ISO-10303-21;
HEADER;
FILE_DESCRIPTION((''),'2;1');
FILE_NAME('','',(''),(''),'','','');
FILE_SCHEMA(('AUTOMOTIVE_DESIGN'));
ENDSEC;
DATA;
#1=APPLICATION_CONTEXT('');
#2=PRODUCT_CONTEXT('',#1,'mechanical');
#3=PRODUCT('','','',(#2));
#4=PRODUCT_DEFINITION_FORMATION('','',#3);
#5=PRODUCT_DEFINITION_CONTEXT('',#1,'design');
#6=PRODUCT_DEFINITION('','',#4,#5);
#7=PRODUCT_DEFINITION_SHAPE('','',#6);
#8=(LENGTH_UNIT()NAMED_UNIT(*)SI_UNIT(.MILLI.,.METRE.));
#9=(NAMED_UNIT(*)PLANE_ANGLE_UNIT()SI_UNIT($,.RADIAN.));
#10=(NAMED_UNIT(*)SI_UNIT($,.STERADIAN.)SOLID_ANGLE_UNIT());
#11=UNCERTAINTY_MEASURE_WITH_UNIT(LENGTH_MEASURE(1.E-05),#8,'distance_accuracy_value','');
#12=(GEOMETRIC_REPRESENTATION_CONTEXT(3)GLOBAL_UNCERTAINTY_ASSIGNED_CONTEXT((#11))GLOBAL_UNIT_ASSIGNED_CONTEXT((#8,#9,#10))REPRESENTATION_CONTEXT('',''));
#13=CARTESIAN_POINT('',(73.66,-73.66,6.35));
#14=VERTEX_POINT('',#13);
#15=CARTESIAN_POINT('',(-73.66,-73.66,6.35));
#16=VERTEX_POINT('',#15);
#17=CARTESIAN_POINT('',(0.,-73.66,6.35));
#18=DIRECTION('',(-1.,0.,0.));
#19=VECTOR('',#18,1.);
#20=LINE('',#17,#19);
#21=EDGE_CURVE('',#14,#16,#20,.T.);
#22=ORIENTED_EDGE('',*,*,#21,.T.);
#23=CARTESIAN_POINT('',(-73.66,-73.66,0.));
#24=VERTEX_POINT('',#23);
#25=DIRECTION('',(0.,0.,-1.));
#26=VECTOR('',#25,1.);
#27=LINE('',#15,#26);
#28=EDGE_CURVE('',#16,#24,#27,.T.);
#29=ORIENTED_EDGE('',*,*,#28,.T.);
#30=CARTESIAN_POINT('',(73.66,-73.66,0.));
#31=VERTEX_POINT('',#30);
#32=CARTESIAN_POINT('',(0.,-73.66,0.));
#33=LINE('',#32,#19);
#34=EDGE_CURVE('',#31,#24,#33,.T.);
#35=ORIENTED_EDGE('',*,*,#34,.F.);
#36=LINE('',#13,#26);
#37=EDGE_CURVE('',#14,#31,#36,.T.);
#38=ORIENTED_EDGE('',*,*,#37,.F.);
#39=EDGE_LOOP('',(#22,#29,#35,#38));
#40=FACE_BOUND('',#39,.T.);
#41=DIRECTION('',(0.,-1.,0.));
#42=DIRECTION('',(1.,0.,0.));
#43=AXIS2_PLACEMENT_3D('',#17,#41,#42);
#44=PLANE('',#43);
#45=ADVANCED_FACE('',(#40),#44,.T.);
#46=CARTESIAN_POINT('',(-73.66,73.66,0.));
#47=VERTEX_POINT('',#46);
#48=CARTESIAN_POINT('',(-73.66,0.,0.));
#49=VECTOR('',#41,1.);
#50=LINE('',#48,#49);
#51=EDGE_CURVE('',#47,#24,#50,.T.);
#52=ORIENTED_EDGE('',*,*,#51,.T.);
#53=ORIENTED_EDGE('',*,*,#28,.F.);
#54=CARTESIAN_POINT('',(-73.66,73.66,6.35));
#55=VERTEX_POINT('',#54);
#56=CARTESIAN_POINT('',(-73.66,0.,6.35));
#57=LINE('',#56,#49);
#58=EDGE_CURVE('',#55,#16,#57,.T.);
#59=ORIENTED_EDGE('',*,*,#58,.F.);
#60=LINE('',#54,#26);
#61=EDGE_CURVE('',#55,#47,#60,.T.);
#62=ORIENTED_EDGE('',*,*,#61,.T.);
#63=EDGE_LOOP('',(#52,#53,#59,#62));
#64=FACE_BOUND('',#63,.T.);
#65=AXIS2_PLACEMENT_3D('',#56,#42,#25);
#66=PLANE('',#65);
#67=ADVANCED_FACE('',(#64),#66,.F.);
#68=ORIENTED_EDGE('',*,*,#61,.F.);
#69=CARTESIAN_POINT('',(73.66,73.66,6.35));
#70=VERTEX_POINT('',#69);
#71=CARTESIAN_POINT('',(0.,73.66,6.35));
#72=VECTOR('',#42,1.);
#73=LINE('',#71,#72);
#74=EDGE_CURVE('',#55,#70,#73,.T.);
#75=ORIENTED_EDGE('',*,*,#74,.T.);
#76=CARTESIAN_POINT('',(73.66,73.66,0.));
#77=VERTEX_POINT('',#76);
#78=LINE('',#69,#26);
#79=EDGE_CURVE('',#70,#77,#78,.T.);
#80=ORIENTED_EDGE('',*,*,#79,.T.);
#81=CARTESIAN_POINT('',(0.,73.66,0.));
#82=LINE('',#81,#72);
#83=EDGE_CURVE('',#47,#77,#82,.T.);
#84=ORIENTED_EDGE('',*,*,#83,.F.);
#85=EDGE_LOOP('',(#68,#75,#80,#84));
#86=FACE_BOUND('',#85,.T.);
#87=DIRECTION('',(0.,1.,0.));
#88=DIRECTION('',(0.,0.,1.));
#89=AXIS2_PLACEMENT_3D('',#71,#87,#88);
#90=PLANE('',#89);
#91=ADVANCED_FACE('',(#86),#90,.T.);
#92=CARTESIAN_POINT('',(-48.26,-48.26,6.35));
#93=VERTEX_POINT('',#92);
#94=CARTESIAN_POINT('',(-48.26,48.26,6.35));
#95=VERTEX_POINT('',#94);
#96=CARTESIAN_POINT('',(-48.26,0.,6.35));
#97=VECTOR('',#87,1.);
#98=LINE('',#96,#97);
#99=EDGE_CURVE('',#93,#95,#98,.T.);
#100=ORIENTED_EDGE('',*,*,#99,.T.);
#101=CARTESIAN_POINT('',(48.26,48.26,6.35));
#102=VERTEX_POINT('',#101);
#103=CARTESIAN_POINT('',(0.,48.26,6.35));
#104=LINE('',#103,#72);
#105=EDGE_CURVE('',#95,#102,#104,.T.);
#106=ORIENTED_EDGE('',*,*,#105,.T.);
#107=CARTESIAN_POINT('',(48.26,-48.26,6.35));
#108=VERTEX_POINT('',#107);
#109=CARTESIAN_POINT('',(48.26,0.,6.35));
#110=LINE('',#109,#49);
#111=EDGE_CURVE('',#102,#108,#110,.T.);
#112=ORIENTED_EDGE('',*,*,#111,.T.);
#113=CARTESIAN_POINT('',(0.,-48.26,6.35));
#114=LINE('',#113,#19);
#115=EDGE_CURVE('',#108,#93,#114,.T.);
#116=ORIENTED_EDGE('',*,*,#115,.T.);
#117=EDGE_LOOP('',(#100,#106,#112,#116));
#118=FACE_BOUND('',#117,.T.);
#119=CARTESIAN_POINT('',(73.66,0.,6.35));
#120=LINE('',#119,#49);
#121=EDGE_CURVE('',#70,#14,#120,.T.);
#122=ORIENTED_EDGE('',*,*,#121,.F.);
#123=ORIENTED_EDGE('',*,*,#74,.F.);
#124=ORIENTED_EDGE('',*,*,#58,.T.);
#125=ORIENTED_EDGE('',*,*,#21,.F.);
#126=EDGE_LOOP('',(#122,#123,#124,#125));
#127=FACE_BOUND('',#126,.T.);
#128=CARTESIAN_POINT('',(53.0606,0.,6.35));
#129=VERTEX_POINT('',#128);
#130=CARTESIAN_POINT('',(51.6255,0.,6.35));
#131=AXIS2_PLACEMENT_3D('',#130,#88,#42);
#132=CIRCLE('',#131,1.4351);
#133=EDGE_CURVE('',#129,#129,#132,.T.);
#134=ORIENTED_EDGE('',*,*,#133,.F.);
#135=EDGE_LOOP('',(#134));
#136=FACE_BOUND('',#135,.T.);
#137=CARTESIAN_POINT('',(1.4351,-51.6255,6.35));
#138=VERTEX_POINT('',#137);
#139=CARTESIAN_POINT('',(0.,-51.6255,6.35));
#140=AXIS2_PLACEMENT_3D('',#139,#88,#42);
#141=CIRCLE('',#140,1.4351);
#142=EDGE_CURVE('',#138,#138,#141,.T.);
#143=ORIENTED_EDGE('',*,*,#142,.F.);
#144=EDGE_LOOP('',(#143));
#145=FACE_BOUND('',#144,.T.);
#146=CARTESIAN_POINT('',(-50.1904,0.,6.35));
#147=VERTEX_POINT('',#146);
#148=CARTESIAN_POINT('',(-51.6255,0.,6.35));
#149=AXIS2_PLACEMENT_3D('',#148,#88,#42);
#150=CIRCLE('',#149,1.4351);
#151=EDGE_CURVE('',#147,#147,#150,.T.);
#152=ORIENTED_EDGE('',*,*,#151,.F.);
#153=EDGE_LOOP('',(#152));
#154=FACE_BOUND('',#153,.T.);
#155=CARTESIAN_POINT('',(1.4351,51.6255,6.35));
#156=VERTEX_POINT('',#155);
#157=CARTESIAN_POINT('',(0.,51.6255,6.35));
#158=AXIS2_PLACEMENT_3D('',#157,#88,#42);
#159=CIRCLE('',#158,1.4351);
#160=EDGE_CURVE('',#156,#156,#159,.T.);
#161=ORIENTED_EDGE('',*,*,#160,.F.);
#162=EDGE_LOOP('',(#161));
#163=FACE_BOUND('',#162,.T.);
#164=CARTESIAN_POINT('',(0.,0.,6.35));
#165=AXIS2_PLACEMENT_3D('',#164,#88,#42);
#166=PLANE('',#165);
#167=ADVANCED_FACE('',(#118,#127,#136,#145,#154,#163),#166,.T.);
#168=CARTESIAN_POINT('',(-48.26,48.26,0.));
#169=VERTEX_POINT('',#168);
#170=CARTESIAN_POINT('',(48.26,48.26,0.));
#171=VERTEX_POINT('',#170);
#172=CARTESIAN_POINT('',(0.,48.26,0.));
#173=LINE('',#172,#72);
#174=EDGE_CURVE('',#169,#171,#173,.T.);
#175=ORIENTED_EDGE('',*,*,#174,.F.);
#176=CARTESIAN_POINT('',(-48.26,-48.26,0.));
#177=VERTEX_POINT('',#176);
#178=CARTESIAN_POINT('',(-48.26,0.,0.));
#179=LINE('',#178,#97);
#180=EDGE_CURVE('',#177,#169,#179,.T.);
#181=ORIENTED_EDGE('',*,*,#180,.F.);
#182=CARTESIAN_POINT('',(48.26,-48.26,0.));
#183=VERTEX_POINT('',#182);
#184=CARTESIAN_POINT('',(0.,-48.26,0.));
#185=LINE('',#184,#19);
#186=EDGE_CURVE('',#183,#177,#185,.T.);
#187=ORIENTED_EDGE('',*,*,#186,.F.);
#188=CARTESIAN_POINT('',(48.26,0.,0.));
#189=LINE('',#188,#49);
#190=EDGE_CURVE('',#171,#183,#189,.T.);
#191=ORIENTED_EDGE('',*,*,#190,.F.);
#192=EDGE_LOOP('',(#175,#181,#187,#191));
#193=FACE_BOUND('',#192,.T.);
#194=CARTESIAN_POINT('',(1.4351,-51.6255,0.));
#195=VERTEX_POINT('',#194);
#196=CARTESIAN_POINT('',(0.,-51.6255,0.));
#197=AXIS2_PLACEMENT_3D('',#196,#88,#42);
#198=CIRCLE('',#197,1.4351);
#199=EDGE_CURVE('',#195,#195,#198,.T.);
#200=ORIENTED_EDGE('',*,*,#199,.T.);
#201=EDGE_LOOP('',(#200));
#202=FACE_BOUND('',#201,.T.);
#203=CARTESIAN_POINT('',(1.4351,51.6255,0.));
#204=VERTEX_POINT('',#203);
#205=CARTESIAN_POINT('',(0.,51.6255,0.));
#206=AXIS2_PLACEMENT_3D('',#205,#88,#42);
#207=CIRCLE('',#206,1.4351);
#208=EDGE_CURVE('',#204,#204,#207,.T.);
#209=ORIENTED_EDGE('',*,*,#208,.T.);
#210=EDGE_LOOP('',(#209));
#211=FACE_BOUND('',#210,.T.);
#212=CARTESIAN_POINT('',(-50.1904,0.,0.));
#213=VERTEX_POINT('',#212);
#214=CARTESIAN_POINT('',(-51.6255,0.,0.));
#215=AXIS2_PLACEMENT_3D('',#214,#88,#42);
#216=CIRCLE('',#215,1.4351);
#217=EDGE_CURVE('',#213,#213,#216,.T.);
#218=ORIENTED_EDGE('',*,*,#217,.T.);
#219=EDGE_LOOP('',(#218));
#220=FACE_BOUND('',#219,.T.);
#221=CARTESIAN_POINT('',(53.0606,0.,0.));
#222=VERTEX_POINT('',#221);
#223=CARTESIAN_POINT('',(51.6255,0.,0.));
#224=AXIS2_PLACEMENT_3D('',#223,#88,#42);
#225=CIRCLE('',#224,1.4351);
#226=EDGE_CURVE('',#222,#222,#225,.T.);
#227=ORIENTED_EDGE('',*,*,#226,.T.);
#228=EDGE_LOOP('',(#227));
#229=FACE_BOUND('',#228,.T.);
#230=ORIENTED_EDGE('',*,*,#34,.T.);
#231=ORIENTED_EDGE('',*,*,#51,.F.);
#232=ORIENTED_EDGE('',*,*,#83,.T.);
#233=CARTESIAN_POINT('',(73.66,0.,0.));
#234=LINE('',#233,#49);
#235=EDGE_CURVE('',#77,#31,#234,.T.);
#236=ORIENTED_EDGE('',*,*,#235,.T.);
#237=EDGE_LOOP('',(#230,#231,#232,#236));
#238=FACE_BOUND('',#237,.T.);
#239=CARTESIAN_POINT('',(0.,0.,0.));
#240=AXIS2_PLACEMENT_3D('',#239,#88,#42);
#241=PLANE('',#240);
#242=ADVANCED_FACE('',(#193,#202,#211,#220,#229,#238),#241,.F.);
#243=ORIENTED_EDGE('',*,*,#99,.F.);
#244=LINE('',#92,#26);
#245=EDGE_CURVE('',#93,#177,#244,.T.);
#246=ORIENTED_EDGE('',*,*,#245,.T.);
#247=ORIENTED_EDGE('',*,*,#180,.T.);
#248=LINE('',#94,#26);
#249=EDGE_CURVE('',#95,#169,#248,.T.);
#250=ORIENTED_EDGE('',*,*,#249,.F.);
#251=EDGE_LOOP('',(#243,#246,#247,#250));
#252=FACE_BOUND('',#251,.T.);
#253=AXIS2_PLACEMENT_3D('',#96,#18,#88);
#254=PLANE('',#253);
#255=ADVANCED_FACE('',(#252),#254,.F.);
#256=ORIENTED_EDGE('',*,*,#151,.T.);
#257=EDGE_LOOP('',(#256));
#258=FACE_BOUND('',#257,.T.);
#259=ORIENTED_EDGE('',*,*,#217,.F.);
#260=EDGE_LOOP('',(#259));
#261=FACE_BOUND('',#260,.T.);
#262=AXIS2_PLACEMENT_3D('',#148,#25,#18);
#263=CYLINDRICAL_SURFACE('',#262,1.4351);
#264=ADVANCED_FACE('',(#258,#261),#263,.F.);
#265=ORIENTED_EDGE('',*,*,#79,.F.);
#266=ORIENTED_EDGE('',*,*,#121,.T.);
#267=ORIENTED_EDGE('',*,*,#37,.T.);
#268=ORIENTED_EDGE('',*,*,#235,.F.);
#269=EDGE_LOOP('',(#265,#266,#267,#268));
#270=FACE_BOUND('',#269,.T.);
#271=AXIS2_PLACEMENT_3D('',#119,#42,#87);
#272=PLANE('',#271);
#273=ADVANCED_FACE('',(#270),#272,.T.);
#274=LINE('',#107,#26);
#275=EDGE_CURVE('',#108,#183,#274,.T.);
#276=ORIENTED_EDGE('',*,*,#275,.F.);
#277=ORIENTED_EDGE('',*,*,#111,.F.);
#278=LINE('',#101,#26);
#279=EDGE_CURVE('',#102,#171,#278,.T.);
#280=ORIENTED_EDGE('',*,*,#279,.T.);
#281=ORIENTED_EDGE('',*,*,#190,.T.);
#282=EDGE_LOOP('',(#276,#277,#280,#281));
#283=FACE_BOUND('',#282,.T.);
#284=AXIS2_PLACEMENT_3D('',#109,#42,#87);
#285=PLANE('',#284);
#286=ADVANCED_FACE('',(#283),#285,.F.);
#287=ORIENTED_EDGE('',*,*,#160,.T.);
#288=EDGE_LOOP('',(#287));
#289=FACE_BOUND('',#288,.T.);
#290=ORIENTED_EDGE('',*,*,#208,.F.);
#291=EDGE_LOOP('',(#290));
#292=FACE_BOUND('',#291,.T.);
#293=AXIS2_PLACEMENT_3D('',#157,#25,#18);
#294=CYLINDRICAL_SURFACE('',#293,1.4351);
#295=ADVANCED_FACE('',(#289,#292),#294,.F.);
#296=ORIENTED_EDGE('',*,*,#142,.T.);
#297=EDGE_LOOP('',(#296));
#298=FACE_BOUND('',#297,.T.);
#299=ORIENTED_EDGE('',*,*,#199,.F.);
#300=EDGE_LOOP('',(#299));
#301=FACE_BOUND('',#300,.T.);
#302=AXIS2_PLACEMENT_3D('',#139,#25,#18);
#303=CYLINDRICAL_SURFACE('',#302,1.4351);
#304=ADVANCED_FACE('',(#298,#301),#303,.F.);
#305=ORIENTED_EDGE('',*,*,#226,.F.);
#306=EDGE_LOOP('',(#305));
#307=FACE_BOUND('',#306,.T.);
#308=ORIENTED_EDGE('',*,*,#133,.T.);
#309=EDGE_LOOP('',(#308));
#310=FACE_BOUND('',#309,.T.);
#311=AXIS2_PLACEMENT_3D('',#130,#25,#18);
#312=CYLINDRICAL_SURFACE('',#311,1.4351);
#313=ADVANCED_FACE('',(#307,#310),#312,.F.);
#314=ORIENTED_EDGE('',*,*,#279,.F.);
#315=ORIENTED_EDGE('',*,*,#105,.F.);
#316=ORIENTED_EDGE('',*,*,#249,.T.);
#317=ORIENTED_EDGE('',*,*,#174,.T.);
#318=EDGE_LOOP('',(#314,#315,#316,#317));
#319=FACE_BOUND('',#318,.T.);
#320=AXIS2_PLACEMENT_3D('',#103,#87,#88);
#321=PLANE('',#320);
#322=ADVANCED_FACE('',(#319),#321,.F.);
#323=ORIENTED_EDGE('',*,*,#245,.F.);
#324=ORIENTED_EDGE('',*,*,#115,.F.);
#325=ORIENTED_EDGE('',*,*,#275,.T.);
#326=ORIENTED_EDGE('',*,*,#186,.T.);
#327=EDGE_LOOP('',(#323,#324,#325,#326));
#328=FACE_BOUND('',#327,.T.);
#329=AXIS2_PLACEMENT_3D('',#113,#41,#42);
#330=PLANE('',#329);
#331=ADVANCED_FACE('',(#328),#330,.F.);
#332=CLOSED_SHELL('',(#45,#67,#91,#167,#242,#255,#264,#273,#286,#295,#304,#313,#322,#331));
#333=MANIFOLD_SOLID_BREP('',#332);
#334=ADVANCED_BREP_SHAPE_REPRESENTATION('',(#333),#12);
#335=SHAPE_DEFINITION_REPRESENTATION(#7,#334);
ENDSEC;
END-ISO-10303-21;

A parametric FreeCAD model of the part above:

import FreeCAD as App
import Part
import Sketcher
from FreeCAD import Vector
Q = App.Units.Quantity


def add_polygon(sketch, points):
    """Adds a closed chain of lines whose ends are joined by coincident constraints."""
    first, n = sketch.GeometryCount, len(points)
    for a, b in zip(points, points[1:] + points[:1]):
        sketch.addGeometry(Part.LineSegment(App.Vector(*a, 0), App.Vector(*b, 0)), False)
    for i in range(n):
        sketch.addConstraint(Sketcher.Constraint("Coincident", first + i, 2, first + (i + 1) % n, 1))

doc = App.newDocument("Part")
body = doc.addObject("PartDesign::Body", "Body")

sketch1 = body.newObject("Sketcher::SketchObject", "Sketch")
sketch1.AttachmentSupport = (doc.getObject("XY_Plane"), [""])
sketch1.MapMode = "FlatFace"
add_polygon(sketch1, [(-73.66, 73.66), (-73.66, -73.66), (73.66, -73.66), (73.66, 73.66)])
sketch1.addGeometry(Part.Circle(Vector(0, -51.6255, 0), Vector(0, 0, 1), 1.4351), False)
sketch1.addGeometry(Part.Circle(Vector(-51.6255, 0, 0), Vector(0, 0, 1), 1.4351), False)
add_polygon(sketch1, [(-48.26, -48.26), (-48.26, 48.26), (48.26, 48.26), (48.26, -48.26)])
sketch1.addGeometry(Part.Circle(Vector(51.6255, 0, 0), Vector(0, 0, 1), 1.4351), False)
sketch1.addGeometry(Part.Circle(Vector(0, 51.6255, 0), Vector(0, 0, 1), 1.4351), False)
sketch1.addConstraint(Sketcher.Constraint("Vertical", 0))
sketch1.addConstraint(Sketcher.Constraint("Horizontal", 1))
sketch1.addConstraint(Sketcher.Constraint("Vertical", 2))
sketch1.addConstraint(Sketcher.Constraint("Horizontal", 3))
sketch1.addConstraint(Sketcher.Constraint("Vertical", 6))
sketch1.addConstraint(Sketcher.Constraint("Horizontal", 7))
sketch1.addConstraint(Sketcher.Constraint("Vertical", 8))
sketch1.addConstraint(Sketcher.Constraint("Horizontal", 9))
sketch1.addConstraint(Sketcher.Constraint("Equal", 4, 5))
sketch1.addConstraint(Sketcher.Constraint("Equal", 5, 10))
sketch1.addConstraint(Sketcher.Constraint("Equal", 10, 11))
sketch1.addConstraint(Sketcher.Constraint("Symmetric", 5, 3, 10, 3, -1, 1))
sketch1.addConstraint(Sketcher.Constraint("Symmetric", 4, 3, 11, 3, -1, 1))
sketch1.addConstraint(Sketcher.Constraint("Symmetric", 0, 2, 2, 2, -1, 1))
sketch1.addConstraint(Sketcher.Constraint("Symmetric", 6, 2, 8, 2, -1, 1))
sketch1.addConstraint(Sketcher.Constraint("PointOnObject", 4, 3, -2))
sketch1.addConstraint(Sketcher.Constraint("PointOnObject", 5, 3, -1))
sketch1.addConstraint(Sketcher.Constraint("Equal", 3, 0))
sketch1.addConstraint(Sketcher.Constraint("Equal", 9, 6))
sketch1.addConstraint(Sketcher.Constraint("Diameter", 4, Q("0.113 in")))
sketch1.addConstraint(Sketcher.Constraint("DistanceX", 1, 1, 1, 2, Q("5.8 in")))
sketch1.addConstraint(Sketcher.Constraint("DistanceX", 7, 1, 7, 2, Q("3.8 in")))
sketch1.addConstraint(Sketcher.Constraint("DistanceX", 5, 3, 10, 3, Q("4.065 in")))
sketch1.addConstraint(Sketcher.Constraint("DistanceY", 4, 3, 11, 3, Q("4.065 in")))
pad1 = body.newObject("PartDesign::Pad", "Pad")
pad1.Profile = sketch1
pad1.Length = Q("0.25 in")

doc.recompute()
